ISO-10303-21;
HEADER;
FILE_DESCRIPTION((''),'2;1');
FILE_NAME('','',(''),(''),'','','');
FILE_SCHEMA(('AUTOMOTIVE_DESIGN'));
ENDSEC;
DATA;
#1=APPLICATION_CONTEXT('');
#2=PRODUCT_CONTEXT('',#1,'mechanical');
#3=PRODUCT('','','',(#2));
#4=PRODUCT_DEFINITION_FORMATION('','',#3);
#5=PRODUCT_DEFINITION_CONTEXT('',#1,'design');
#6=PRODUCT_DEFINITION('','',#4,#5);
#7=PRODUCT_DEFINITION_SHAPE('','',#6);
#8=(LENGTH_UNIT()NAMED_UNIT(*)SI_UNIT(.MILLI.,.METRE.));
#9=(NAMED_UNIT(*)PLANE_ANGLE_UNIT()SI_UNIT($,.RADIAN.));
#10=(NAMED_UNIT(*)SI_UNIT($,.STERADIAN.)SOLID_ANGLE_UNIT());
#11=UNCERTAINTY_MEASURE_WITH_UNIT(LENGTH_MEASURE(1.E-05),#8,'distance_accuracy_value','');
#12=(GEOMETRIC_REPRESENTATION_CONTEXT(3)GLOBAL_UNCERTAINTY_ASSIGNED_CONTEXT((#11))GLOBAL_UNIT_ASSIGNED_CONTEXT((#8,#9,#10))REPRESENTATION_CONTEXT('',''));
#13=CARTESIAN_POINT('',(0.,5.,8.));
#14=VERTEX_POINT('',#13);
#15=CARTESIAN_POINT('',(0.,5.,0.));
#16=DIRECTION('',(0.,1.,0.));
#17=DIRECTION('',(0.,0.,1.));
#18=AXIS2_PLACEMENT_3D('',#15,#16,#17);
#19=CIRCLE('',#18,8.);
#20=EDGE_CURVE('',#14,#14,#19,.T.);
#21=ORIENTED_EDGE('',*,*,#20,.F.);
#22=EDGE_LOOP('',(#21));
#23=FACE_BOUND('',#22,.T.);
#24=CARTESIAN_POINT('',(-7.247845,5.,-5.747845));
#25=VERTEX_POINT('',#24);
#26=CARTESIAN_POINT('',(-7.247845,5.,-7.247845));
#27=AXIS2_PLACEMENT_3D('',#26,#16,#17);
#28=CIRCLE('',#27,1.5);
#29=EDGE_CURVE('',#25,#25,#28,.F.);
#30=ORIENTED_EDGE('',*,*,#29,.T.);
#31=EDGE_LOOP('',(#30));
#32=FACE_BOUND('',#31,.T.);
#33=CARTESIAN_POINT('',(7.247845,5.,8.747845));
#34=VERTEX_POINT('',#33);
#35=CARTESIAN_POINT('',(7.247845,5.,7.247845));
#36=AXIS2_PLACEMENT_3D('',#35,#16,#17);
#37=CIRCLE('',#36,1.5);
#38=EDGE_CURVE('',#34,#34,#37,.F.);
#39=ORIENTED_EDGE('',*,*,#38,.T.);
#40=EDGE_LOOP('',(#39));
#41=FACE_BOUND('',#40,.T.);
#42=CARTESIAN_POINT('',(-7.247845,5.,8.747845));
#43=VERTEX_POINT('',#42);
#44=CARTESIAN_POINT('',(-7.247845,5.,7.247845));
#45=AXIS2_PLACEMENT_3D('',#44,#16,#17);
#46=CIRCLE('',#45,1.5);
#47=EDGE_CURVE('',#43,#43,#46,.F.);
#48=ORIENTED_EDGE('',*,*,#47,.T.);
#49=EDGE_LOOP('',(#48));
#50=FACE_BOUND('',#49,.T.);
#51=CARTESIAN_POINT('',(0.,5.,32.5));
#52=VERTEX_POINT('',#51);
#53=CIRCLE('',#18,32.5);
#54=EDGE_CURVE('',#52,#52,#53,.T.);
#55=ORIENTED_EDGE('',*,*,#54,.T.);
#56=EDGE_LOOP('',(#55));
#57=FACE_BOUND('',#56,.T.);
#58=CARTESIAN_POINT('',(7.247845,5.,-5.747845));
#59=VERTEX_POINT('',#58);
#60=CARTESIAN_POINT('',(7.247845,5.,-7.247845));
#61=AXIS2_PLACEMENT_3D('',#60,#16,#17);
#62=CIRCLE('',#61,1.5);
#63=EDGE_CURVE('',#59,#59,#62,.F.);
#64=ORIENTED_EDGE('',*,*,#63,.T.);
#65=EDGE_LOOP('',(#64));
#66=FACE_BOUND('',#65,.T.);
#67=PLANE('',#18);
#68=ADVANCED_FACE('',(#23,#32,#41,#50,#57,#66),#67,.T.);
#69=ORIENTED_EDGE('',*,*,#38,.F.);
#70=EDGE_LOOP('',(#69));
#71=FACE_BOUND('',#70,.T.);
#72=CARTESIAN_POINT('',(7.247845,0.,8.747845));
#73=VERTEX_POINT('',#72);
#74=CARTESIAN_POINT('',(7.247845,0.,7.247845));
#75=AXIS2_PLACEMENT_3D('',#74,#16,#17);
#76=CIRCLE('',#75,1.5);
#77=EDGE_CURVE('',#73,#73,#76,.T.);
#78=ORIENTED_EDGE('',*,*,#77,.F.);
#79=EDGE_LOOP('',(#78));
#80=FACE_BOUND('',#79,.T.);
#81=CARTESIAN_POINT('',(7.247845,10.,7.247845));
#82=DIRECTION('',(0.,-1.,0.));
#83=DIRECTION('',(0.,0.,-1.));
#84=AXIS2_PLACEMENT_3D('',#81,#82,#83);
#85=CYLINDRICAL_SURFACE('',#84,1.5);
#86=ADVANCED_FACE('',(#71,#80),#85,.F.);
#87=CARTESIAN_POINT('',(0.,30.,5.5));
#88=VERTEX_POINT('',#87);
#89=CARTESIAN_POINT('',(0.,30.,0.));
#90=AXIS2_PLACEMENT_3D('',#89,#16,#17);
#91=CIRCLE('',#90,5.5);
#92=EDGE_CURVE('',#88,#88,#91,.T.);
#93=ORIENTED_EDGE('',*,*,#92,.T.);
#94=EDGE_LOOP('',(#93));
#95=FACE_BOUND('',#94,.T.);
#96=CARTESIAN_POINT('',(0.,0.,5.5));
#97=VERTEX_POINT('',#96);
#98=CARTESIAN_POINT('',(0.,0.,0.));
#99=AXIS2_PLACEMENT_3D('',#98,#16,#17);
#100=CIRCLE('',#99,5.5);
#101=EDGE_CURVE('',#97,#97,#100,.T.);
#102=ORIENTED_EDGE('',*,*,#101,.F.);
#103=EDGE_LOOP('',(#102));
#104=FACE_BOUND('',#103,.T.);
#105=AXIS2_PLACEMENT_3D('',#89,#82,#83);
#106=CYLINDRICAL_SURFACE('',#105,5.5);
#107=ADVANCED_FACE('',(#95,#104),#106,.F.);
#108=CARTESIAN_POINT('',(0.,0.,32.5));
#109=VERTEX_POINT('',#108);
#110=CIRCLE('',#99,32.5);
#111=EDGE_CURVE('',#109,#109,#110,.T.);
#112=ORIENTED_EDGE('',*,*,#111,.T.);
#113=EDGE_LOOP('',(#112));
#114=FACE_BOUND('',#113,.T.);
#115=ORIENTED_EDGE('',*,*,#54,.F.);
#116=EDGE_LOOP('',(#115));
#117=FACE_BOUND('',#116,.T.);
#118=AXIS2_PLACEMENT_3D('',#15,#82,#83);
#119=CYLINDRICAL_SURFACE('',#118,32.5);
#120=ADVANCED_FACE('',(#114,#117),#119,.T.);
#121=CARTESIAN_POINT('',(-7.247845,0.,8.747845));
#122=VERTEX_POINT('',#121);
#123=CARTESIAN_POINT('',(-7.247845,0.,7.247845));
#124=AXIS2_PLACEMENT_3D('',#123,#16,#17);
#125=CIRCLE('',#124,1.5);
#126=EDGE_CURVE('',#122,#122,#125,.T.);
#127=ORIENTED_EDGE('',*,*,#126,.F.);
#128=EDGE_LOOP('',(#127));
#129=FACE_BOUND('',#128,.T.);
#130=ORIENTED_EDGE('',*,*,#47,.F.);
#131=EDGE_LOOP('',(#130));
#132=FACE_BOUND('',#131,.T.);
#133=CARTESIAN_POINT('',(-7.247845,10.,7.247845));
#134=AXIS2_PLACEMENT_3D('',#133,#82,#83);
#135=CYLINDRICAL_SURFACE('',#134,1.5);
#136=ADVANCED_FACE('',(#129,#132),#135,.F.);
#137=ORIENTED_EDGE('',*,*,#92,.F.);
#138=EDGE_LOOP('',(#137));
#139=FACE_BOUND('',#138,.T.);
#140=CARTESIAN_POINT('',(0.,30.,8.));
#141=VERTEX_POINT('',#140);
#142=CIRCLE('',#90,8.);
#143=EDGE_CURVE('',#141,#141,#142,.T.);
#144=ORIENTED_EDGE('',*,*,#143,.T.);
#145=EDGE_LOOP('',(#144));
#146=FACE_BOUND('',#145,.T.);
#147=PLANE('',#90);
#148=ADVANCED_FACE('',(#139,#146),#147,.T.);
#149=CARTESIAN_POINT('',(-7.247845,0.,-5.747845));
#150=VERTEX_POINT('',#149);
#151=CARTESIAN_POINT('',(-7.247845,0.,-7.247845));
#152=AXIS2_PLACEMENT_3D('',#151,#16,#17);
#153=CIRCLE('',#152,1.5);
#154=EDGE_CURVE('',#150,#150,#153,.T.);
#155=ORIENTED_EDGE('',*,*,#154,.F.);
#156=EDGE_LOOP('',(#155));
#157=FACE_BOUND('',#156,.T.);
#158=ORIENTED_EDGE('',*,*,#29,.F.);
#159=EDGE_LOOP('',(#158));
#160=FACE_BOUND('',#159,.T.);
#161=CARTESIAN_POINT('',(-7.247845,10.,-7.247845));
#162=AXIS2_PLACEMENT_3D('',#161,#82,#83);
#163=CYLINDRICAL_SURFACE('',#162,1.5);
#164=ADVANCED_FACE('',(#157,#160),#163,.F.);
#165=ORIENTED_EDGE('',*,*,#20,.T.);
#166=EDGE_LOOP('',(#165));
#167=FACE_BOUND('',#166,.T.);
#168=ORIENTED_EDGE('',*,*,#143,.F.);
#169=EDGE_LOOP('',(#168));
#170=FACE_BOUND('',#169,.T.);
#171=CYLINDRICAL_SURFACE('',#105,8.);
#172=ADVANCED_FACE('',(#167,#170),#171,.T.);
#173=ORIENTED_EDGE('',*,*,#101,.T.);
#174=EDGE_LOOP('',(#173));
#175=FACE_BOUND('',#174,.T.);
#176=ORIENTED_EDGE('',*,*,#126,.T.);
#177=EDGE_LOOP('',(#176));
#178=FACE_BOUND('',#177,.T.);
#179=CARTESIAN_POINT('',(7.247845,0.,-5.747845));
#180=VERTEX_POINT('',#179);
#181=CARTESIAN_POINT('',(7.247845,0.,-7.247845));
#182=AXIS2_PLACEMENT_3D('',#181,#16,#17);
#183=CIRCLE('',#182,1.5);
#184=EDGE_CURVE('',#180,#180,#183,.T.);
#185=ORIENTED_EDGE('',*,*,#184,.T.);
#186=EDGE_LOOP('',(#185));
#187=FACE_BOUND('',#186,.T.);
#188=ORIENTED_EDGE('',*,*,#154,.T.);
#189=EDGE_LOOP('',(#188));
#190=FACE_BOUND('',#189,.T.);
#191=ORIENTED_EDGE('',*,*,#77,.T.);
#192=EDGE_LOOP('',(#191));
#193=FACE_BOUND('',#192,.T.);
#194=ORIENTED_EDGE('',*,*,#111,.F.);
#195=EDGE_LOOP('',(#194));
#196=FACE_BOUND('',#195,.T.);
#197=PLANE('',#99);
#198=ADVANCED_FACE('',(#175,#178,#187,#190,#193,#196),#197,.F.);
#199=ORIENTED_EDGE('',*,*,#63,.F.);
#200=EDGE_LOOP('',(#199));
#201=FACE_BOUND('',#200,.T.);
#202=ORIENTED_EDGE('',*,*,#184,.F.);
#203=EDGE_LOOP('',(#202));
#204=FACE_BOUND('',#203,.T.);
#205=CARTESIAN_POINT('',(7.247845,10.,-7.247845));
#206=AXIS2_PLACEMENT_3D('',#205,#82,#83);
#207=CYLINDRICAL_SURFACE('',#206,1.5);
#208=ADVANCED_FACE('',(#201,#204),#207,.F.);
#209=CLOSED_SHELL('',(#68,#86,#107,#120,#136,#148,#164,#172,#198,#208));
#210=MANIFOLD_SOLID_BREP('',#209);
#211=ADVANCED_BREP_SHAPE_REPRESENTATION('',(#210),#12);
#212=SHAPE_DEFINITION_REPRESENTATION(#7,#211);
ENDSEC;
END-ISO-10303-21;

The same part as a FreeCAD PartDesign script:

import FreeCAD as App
import Part
import Sketcher
from FreeCAD import Vector
Q = App.Units.Quantity

doc = App.newDocument("Part")
body = doc.addObject("PartDesign::Body", "Body")

# Sketch on XZ plane
sketch1 = body.newObject("Sketcher::SketchObject", "Sketch")
sketch1.AttachmentSupport = (doc.getObject("XZ_Plane"), [""])
sketch1.MapMode = "FlatFace"
sketch1.addGeometry([
    Part.Circle(Vector(0, 0, 0), Vector(0, 0, 1), 32),
    Part.Circle(Vector(0, 0, 0), Vector(0, 0, 1), 8),
], False)
sketch1.addConstraint([
    Sketcher.Constraint("Coincident", 0, 3, -1, 1),
    Sketcher.Constraint("Coincident", 1, 3, -1, 1),
    Sketcher.Constraint("Diameter", 0, Q("65 mm")),
    Sketcher.Constraint("Diameter", 1, Q("16 mm")),
])
pad1 = body.newObject("PartDesign::Pad", "Pad")
pad1.Profile = sketch1
pad1.Length = 5
pad1.Reversed = True

# Sketch on XZ plane
sketch2 = body.newObject("Sketcher::SketchObject", "Sketch001")
sketch2.AttachmentSupport = (doc.getObject("XZ_Plane"), [""])
sketch2.MapMode = "FlatFace"
sketch2.addGeometry([
    Part.Circle(Vector(-7.2, -7.2, 0), Vector(0, 0, 1), 1.5),
    Part.Circle(Vector(7.2, -7.2, 0), Vector(0, 0, 1), 1.5),
    Part.Circle(Vector(7.2, 7.2, 0), Vector(0, 0, 1), 1.5),
    Part.Circle(Vector(-7.2, 7.2, 0), Vector(0, 0, 1), 1.5),
], False)
sketch2.addConstraint([
    Sketcher.Constraint("Equal", 0, 1),
    Sketcher.Constraint("Equal", 1, 2),
    Sketcher.Constraint("Equal", 2, 3),
    Sketcher.Constraint("Symmetric", 0, 3, 2, 3, -1, 1),
    Sketcher.Constraint("Symmetric", 1, 3, 3, 3, -1, 1),
    Sketcher.Constraint("Symmetric", 0, 3, 1, 3, -2),
    Sketcher.Constraint("Diameter", 0, Q("3 mm")),
    Sketcher.Constraint("DistanceX", 0, 3, 1, 3, Q("14.495689 mm")),
    Sketcher.Constraint("DistanceY", 1, 3, 2, 3, Q("14.495689 mm")),
])
pocket1 = body.newObject("PartDesign::Pocket", "Pocket")
pocket1.Profile = sketch2
pocket1.Length = 10

# Sketch on XZ plane
sketch3 = body.newObject("Sketcher::SketchObject", "Sketch002")
sketch3.AttachmentSupport = (doc.getObject("XZ_Plane"), [""])
sketch3.MapMode = "FlatFace"
sketch3.addGeometry([
    Part.Circle(Vector(0, 0, 0), Vector(0, 0, 1), 8),
    Part.Circle(Vector(0, 0, 0), Vector(0, 0, 1), 6),
], False)
sketch3.addConstraint([
    Sketcher.Constraint("Coincident", 0, 3, -1, 1),
    Sketcher.Constraint("Coincident", 1, 3, -1, 1),
    Sketcher.Constraint("Diameter", 0, Q("16 mm")),
    Sketcher.Constraint("Diameter", 1, Q("11 mm")),
])
pad2 = body.newObject("PartDesign::Pad", "Pad001")
pad2.Profile = sketch3
pad2.Length = 30
pad2.Reversed = True

doc.recompute()
